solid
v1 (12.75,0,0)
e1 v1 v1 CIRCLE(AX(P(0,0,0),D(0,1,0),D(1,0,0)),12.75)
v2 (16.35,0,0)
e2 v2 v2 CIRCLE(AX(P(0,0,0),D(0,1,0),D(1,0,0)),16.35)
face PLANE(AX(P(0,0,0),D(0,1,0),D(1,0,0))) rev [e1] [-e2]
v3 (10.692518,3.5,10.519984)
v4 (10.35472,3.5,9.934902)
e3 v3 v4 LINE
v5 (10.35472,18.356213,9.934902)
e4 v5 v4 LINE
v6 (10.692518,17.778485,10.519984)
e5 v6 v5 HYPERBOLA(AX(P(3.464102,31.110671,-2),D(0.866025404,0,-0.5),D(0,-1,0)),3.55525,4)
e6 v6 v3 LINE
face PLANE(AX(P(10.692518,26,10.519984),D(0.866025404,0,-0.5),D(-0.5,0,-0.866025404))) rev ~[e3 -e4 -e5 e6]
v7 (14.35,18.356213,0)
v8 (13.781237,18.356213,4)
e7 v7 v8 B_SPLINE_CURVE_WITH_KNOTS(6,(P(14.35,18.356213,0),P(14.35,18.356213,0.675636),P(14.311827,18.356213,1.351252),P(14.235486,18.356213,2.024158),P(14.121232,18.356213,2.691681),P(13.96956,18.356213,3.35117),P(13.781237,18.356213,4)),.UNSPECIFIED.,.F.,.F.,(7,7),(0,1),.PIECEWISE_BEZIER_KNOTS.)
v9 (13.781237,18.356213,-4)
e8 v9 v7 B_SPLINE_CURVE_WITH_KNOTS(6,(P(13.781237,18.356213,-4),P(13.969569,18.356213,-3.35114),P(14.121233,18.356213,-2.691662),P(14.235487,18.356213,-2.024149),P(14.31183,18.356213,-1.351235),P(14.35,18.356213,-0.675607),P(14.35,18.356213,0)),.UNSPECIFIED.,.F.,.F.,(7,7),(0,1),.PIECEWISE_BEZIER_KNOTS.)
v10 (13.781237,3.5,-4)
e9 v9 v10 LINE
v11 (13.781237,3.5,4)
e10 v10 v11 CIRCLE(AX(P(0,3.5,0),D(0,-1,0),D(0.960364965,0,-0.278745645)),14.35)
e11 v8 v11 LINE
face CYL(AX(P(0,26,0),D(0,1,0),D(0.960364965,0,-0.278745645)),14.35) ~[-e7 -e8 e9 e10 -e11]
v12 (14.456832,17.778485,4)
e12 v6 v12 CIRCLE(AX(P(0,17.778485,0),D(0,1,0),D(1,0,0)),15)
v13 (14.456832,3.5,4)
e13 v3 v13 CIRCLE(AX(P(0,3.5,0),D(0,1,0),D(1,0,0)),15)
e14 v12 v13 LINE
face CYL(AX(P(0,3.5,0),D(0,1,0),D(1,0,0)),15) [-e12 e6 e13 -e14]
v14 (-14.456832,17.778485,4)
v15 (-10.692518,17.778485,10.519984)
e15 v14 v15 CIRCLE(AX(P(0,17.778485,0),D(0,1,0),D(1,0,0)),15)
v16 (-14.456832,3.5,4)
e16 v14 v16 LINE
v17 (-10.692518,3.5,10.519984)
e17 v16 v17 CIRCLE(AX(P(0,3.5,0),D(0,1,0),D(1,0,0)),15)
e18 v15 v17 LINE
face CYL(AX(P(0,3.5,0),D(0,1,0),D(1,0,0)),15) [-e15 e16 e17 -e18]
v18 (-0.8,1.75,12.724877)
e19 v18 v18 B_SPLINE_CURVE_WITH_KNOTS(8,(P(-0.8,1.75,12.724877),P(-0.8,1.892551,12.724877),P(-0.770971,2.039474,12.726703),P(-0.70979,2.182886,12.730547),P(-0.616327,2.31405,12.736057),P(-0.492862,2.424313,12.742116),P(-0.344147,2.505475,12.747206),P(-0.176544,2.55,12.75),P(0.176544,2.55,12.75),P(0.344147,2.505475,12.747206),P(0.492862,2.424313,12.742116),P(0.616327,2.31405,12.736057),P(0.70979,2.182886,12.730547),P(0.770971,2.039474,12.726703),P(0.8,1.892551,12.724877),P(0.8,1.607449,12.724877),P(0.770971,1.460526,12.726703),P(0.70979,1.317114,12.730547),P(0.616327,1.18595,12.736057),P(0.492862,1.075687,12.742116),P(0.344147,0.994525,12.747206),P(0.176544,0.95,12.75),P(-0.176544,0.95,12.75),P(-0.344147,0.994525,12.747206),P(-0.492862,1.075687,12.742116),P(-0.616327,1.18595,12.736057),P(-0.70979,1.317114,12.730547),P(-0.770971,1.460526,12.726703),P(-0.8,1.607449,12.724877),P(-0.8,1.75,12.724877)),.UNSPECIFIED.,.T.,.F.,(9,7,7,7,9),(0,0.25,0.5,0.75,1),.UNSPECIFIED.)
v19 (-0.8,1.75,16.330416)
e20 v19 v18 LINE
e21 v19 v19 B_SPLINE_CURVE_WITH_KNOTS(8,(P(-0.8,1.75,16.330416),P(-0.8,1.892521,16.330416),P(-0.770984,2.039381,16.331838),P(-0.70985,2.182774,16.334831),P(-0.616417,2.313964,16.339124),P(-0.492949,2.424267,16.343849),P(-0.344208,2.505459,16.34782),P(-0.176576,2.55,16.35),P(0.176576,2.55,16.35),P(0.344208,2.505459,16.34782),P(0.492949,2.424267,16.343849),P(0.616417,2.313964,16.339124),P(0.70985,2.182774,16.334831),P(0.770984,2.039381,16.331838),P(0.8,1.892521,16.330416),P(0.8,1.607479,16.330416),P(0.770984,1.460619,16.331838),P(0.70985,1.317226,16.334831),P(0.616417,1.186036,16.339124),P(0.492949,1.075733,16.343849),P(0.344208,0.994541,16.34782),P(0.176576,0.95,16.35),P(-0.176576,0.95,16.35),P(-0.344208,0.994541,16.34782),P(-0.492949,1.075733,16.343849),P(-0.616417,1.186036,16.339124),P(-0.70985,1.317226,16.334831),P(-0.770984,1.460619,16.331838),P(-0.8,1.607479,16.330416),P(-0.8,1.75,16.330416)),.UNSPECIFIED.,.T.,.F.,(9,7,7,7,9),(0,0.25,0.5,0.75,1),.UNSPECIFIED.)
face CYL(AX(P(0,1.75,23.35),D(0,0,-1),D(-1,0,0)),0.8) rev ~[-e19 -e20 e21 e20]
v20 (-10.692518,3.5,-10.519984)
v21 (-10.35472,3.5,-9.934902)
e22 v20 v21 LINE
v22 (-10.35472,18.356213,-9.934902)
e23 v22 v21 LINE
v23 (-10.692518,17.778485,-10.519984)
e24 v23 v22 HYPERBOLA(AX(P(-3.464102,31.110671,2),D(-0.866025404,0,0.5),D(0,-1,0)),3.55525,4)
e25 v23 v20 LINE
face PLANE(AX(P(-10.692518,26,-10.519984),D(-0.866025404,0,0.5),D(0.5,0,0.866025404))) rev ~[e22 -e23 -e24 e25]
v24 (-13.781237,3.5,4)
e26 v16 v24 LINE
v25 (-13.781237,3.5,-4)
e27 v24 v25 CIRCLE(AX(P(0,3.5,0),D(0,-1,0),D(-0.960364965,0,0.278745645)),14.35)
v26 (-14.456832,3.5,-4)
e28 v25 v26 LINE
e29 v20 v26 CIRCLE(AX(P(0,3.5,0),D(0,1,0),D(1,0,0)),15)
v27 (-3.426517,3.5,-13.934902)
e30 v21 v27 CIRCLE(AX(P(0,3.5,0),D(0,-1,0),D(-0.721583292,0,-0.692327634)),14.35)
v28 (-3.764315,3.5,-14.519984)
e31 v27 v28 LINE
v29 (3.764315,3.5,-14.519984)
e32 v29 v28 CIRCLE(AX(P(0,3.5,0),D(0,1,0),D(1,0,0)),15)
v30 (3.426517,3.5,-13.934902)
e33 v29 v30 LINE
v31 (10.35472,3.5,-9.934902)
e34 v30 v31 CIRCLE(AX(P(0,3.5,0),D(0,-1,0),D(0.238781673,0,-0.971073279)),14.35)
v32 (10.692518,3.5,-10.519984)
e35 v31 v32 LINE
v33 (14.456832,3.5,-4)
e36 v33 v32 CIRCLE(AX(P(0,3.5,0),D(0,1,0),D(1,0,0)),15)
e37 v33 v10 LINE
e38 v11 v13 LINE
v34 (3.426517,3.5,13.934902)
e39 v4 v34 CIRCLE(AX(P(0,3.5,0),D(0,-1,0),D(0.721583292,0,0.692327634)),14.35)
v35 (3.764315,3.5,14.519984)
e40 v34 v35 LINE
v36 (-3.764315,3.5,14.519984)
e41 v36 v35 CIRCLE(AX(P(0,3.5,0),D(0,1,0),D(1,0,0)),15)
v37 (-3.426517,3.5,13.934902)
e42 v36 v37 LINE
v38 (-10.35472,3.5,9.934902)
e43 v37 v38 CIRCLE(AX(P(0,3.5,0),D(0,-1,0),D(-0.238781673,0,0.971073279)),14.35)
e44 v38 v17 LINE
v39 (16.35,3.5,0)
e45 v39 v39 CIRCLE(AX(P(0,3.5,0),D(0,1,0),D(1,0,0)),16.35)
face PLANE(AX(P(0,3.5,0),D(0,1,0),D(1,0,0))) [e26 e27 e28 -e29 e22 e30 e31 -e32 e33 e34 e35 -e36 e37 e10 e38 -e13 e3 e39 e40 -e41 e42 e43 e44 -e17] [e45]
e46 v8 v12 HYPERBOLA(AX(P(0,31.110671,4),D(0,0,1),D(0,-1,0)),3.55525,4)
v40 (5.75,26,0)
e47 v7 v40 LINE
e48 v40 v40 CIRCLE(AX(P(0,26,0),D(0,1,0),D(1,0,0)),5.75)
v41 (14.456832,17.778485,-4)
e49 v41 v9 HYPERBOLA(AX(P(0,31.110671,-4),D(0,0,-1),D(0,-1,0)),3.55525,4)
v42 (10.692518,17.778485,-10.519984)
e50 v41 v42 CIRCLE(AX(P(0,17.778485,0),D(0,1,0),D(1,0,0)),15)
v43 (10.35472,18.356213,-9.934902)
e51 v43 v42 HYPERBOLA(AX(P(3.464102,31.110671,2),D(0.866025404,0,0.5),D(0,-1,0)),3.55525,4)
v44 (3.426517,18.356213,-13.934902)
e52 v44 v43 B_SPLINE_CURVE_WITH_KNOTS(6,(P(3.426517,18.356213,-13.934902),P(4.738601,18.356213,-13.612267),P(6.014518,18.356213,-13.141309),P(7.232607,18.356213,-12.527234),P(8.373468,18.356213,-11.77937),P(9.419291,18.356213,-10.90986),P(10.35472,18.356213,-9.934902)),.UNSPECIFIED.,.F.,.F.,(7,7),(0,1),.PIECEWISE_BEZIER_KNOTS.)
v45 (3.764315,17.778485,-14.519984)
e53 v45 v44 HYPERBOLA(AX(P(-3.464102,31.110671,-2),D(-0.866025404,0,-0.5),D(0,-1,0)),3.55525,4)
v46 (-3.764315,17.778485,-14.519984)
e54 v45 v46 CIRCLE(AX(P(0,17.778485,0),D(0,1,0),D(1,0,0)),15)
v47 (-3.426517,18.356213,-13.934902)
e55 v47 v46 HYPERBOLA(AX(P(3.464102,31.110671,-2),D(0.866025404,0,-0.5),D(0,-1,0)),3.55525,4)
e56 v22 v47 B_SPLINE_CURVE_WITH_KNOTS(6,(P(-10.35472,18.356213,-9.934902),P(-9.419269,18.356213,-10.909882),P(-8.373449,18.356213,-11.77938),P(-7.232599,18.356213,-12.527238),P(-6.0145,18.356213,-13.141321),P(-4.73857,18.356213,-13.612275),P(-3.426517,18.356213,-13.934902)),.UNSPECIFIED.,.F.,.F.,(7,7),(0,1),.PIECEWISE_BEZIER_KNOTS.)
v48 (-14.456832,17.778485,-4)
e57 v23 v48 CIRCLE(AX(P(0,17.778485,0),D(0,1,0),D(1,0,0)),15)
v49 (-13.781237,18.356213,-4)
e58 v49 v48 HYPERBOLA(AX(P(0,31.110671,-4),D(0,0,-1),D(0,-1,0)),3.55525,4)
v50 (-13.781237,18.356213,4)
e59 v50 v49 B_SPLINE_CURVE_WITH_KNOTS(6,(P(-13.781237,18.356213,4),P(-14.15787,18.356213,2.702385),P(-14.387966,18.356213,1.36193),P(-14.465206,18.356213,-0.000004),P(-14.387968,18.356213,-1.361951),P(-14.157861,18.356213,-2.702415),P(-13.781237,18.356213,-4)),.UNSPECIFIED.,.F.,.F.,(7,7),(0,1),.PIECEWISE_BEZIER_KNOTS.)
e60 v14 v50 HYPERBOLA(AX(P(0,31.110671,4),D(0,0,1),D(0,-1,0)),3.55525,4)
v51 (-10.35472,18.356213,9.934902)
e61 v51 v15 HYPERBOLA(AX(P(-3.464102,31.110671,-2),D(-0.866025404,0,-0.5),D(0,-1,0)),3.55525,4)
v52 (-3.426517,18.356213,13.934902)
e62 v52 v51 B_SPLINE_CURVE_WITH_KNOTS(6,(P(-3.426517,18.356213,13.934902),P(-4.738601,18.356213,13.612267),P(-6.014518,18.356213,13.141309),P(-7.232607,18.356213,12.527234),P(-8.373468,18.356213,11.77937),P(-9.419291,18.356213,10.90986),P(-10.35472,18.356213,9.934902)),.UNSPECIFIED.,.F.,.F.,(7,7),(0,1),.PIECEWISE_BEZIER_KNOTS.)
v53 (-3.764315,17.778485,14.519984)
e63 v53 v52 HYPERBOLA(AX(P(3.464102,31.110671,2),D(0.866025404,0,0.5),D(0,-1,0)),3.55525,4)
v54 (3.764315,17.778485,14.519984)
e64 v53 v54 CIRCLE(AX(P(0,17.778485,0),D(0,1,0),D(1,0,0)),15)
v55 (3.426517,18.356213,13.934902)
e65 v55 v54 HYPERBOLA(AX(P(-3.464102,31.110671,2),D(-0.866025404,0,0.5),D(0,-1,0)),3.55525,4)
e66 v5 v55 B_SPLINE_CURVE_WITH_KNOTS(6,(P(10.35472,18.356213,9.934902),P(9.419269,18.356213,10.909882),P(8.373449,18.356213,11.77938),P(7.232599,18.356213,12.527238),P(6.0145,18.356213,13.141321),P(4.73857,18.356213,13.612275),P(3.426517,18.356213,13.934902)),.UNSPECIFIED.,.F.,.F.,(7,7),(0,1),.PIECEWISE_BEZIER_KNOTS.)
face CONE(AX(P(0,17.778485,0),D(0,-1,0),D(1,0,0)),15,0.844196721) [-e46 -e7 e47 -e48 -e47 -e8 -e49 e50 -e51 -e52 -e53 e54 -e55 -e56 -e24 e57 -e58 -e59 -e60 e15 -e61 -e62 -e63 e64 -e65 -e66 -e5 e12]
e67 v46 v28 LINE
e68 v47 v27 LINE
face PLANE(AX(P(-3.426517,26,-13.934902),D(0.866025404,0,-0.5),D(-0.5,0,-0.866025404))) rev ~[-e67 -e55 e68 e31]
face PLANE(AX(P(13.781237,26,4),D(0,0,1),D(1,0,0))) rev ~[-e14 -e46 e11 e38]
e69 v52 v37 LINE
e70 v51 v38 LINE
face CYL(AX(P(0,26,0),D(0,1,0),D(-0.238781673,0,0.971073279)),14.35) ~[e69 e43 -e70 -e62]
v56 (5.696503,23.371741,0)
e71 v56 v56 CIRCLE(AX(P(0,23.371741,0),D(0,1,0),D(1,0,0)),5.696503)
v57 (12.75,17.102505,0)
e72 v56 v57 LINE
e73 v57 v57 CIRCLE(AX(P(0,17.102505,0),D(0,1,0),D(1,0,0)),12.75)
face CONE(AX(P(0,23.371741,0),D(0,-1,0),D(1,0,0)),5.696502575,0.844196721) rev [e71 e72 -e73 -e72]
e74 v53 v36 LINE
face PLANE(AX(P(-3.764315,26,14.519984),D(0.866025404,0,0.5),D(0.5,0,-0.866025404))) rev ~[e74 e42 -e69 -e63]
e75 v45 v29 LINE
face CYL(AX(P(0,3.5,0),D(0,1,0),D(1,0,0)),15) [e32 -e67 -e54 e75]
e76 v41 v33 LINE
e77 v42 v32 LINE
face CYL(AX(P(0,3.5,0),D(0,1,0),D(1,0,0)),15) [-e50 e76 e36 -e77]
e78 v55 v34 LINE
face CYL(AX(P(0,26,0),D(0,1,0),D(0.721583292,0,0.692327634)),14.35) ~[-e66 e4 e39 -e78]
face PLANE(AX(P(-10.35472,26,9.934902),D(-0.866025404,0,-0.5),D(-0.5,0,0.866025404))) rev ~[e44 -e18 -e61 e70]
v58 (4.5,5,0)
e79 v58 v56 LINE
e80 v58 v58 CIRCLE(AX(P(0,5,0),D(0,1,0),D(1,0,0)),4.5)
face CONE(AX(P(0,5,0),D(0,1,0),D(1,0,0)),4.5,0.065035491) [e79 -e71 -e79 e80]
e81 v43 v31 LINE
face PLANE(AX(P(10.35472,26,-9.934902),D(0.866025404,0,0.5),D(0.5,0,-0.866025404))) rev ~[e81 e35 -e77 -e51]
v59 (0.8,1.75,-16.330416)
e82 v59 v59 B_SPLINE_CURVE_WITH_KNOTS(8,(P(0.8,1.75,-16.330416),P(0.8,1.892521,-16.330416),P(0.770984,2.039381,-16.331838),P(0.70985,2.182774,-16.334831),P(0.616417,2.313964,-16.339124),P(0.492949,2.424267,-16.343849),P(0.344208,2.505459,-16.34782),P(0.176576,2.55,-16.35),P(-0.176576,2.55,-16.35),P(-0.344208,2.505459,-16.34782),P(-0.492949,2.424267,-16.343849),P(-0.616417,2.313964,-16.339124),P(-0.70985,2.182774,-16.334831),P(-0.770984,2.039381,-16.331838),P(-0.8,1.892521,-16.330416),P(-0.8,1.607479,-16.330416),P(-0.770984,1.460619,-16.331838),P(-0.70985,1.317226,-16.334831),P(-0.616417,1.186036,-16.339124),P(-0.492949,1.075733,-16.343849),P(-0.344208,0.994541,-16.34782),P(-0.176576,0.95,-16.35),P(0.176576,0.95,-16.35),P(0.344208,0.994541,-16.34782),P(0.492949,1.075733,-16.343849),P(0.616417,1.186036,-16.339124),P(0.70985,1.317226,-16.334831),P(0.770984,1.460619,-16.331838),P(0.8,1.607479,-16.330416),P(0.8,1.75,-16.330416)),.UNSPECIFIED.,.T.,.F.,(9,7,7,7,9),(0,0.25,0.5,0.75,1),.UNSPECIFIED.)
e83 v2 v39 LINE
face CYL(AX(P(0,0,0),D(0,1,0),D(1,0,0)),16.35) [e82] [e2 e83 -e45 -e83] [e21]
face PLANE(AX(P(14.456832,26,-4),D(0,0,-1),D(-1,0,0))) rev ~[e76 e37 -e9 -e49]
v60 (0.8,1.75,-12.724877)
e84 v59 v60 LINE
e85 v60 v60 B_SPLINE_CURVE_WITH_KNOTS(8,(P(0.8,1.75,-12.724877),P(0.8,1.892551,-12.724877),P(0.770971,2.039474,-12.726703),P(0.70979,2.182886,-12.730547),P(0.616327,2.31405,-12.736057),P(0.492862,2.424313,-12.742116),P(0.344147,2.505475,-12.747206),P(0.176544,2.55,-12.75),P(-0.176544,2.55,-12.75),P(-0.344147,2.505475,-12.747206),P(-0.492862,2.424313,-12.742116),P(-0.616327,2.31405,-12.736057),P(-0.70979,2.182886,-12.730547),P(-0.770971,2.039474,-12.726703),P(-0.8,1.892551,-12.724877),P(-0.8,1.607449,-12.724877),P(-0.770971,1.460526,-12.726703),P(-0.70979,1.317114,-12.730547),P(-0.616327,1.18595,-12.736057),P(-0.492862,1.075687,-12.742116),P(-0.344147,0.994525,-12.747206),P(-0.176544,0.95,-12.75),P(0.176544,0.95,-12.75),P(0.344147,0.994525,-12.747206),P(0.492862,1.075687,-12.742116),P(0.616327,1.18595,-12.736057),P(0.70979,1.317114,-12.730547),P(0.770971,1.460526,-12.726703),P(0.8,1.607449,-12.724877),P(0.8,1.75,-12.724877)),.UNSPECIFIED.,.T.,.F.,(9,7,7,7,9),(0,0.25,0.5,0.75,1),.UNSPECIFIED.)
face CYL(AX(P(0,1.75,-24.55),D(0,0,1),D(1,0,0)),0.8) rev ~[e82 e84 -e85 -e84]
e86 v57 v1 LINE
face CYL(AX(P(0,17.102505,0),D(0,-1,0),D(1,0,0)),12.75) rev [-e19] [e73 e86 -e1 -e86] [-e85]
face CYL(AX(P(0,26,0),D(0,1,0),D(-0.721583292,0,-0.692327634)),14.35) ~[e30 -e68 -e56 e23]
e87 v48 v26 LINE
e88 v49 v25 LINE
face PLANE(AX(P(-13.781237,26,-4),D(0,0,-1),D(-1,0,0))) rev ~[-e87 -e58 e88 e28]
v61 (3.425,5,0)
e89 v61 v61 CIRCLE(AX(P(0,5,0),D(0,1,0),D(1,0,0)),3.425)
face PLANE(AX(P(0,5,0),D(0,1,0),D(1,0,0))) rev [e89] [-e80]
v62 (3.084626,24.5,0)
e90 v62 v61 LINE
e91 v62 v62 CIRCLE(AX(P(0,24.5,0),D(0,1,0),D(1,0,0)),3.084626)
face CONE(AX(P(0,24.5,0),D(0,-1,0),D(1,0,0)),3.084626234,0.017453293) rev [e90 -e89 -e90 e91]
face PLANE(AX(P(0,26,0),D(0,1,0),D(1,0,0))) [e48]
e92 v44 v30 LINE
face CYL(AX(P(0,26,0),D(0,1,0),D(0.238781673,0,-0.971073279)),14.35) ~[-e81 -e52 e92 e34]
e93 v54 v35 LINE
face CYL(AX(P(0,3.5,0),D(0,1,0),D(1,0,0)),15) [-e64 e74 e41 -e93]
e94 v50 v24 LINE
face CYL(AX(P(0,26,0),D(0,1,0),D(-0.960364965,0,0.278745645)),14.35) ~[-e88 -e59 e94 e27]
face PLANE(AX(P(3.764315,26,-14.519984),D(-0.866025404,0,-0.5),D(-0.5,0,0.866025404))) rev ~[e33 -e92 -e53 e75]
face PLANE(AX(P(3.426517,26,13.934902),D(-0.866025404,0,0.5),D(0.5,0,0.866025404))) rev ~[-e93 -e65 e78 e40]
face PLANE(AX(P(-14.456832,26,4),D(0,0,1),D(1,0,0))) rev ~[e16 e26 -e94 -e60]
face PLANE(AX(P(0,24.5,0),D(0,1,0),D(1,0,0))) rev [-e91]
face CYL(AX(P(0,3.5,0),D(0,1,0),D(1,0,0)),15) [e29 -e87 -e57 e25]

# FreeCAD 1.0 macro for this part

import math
import FreeCAD as App
import Part
import Sketcher
Q = App.Units.Quantity

doc = App.newDocument("Part")
body = doc.addObject("PartDesign::Body", "Body")

# Sketch on XY plane
sketch1 = body.newObject("Sketcher::SketchObject", "Sketch")
sketch1.AttachmentSupport = (doc.getObject("XY_Plane"), [""])
sketch1.MapMode = "FlatFace"
sketch1.addGeometry([
    Part.LineSegment(App.Vector(12.8, 0, 0), App.Vector(16.4, 0, 0)),  # 0
    Part.LineSegment(App.Vector(16.4, 0, 0), App.Vector(16.4, 3.5, 0)),  # 1
    Part.LineSegment(App.Vector(16.4, 3.5, 0), App.Vector(15, 3.5, 0)),  # 2
    Part.LineSegment(App.Vector(15, 3.5, 0), App.Vector(15, 17.8, 0)),  # 3
    Part.LineSegment(App.Vector(15, 17.8, 0), App.Vector(5.8, 26, 0)),  # 4
    Part.LineSegment(App.Vector(5.8, 26, 0), App.Vector(0, 26, 0)),  # 5
    Part.LineSegment(App.Vector(0, 26, 0), App.Vector(0, 24.5, 0)),  # 6
    Part.LineSegment(App.Vector(0, 24.5, 0), App.Vector(3.1, 24.5, 0)),  # 7
    Part.LineSegment(App.Vector(3.1, 24.5, 0), App.Vector(3.4, 5, 0)),  # 8
    Part.LineSegment(App.Vector(3.4, 5, 0), App.Vector(4.5, 5, 0)),  # 9
    Part.LineSegment(App.Vector(4.5, 5, 0), App.Vector(5.7, 23.4, 0)),  # 10
    Part.LineSegment(App.Vector(5.7, 23.4, 0), App.Vector(12.8, 17.1, 0)),  # 11
    Part.LineSegment(App.Vector(12.8, 17.1, 0), App.Vector(12.8, 0, 0)),  # 12
], False)
sketch1.addConstraint([
    Sketcher.Constraint("Coincident", 0, 2, 1, 1),
    Sketcher.Constraint("Coincident", 1, 2, 2, 1),
    Sketcher.Constraint("Coincident", 2, 2, 3, 1),
    Sketcher.Constraint("Coincident", 3, 2, 4, 1),
    Sketcher.Constraint("Coincident", 4, 2, 5, 1),
    Sketcher.Constraint("Coincident", 5, 2, 6, 1),
    Sketcher.Constraint("Coincident", 6, 2, 7, 1),
    Sketcher.Constraint("Coincident", 7, 2, 8, 1),
    Sketcher.Constraint("Coincident", 8, 2, 9, 1),
    Sketcher.Constraint("Coincident", 9, 2, 10, 1),
    Sketcher.Constraint("Coincident", 10, 2, 11, 1),
    Sketcher.Constraint("Coincident", 11, 2, 12, 1),
    Sketcher.Constraint("Coincident", 12, 2, 0, 1),
    Sketcher.Constraint("Horizontal", 0),
    Sketcher.Constraint("Vertical", 1),
    Sketcher.Constraint("Horizontal", 2),
    Sketcher.Constraint("Vertical", 3),
    Sketcher.Constraint("Horizontal", 5),
    Sketcher.Constraint("Vertical", 6),
    Sketcher.Constraint("Horizontal", 7),
    Sketcher.Constraint("Horizontal", 9),
    Sketcher.Constraint("Vertical", 12),
    Sketcher.Constraint("PointOnObject", 0, 2, -1),
    Sketcher.Constraint("PointOnObject", 5, 2, -2),
    Sketcher.Constraint("Parallel", 4, 11),
    Sketcher.Constraint("Angle", 8, Q("-89 deg")),
    Sketcher.Constraint("DistanceX", 0, 1, 0, 2, 3.6),
    Sketcher.Constraint("DistanceY", 1, 1, 1, 2, 3.5),
    Sketcher.Constraint("DistanceY", 6, 2, 6, 1, 1.5),
    Sketcher.Constraint("DistanceX", -1, 1, 2, 2, 15.0),
    Sketcher.Constraint("DistanceY", -1, 1, 4, 2, 26.0),
    Sketcher.Constraint("DistanceY", -1, 1, 8, 2, 5.0),
    Sketcher.Constraint("DistanceX", 4, 2, 11, 2, 7.0),
    Sketcher.Constraint("DistanceX", 2, 2, 2, 1, 1.35),
    Sketcher.Constraint("DistanceX", -1, 1, 9, 2, 4.5),
    Sketcher.Constraint("DistanceX", 9, 1, 9, 2, 1.075),
    Sketcher.Constraint("DistanceY", 3, 1, 3, 2, 14.278485),
    Sketcher.Constraint("DistanceY", 12, 2, 12, 1, 17.102505),
    Sketcher.Constraint("DistanceY", -1, 1, 10, 2, 23.371741),
])
revolution = body.newObject("PartDesign::Revolution", "Revolution")
revolution.Profile = sketch1
revolution.ReferenceAxis = (sketch1, ["V_Axis"])
revolution.Angle = 360

# Sketch on XZ plane
sketch2 = body.newObject("Sketcher::SketchObject", "Sketch001")
sketch2.AttachmentSupport = (doc.getObject("XZ_Plane"), [""])
sketch2.MapMode = "FlatFace"
sketch2.AttachmentOffset = App.Placement(App.Vector(0, 0, -26), App.Rotation())
sketch2.addGeometry([
    Part.LineSegment(App.Vector(13.8, 4, 0), App.Vector(14.5, 4, 0)),
    Part.ArcOfCircle(Part.Circle(App.Vector(0, 0, 0), App.Vector(0, 0, 1), 15), math.radians(-15), math.radians(15)),
    Part.LineSegment(App.Vector(14.5, -4, 0), App.Vector(13.8, -4, 0)),
    Part.ArcOfCircle(Part.Circle(App.Vector(0, 0, 0), App.Vector(0, 0, 1), 14.4), math.radians(-16), math.radians(16)),
], False)
sketch2.addConstraint([
    Sketcher.Constraint("Coincident", 0, 2, 1, 2),
    Sketcher.Constraint("Coincident", 1, 1, 2, 1),
    Sketcher.Constraint("Coincident", 2, 2, 3, 1),
    Sketcher.Constraint("Coincident", 3, 2, 0, 1),
    Sketcher.Constraint("Horizontal", 0),
    Sketcher.Constraint("Horizontal", 2),
    Sketcher.Constraint("Coincident", 1, 3, -1, 1),
    Sketcher.Constraint("Coincident", 3, 3, -1, 1),
    Sketcher.Constraint("Vertical", 0, 2, 1, 1),
    Sketcher.Constraint("Radius", 1, 15.0),
    Sketcher.Constraint("Radius", 3, 14.35),
    Sketcher.Constraint("DistanceY", -1, 1, 0, 2, 4.0),
])
pocket1 = body.newObject("PartDesign::Pocket", "Pocket")
pocket1.Profile = sketch2
pocket1.Length = 22.5
pocket1.Reversed = True
doc.recompute()

polarpattern = body.newObject("PartDesign::PolarPattern", "PolarPattern")
polarpattern.Originals = [pocket1]
polarpattern.Axis = (doc.getObject("Y_Axis"), [""])
polarpattern.Angle = 360
polarpattern.Occurrences = 6
body.Tip = polarpattern

# Sketch on XY plane
sketch3 = body.newObject("Sketcher::SketchObject", "Sketch002")
sketch3.AttachmentSupport = (doc.getObject("XY_Plane"), [""])
sketch3.MapMode = "FlatFace"
sketch3.AttachmentOffset = App.Placement(App.Vector(0, 0, 16.35), App.Rotation())
sketch3.addGeometry(Part.Circle(App.Vector(0, 1.8, 0), App.Vector(0, 0, 1), 0.8), False)
sketch3.addConstraint([
    Sketcher.Constraint("PointOnObject", 0, 3, -2),
    Sketcher.Constraint("Diameter", 0, 1.6),
    Sketcher.Constraint("DistanceY", -1, 1, 0, 3, 1.75),
])
doc.recompute()
hole = body.newObject("PartDesign::Hole", "Hole")
hole.Profile = sketch3
hole.ThreadType = "None"
hole.Diameter = 1.6
hole.DepthType = "Dimension"
hole.Depth = 7
hole.DrillPoint = "Angled"
hole.DrillPointAngle = 118

# Sketch on XY plane
sketch4 = body.newObject("Sketcher::SketchObject", "Sketch003")
sketch4.AttachmentSupport = (doc.getObject("XY_Plane"), [""])
sketch4.MapMode = "FlatFace"
sketch4.AttachmentOffset = App.Placement(App.Vector(0, 0, -16.35), App.Rotation())
sketch4.addGeometry(Part.Circle(App.Vector(0, 1.8, 0), App.Vector(0, 0, 1), 0.8), False)
sketch4.addConstraint([
    Sketcher.Constraint("PointOnObject", 0, 3, -2),
    Sketcher.Constraint("Diameter", 0, 1.6),
    Sketcher.Constraint("DistanceY", -1, 1, 0, 3, 1.75),
])
doc.recompute()
hole2 = body.newObject("PartDesign::Hole", "Hole001")
hole2.Profile = sketch4
hole2.ThreadType = "None"
hole2.Diameter = 1.6
hole2.DepthType = "Dimension"
hole2.Depth = 8.2
hole2.DrillPoint = "Angled"
hole2.DrillPointAngle = 118
hole2.Reversed = True

doc.recompute()
